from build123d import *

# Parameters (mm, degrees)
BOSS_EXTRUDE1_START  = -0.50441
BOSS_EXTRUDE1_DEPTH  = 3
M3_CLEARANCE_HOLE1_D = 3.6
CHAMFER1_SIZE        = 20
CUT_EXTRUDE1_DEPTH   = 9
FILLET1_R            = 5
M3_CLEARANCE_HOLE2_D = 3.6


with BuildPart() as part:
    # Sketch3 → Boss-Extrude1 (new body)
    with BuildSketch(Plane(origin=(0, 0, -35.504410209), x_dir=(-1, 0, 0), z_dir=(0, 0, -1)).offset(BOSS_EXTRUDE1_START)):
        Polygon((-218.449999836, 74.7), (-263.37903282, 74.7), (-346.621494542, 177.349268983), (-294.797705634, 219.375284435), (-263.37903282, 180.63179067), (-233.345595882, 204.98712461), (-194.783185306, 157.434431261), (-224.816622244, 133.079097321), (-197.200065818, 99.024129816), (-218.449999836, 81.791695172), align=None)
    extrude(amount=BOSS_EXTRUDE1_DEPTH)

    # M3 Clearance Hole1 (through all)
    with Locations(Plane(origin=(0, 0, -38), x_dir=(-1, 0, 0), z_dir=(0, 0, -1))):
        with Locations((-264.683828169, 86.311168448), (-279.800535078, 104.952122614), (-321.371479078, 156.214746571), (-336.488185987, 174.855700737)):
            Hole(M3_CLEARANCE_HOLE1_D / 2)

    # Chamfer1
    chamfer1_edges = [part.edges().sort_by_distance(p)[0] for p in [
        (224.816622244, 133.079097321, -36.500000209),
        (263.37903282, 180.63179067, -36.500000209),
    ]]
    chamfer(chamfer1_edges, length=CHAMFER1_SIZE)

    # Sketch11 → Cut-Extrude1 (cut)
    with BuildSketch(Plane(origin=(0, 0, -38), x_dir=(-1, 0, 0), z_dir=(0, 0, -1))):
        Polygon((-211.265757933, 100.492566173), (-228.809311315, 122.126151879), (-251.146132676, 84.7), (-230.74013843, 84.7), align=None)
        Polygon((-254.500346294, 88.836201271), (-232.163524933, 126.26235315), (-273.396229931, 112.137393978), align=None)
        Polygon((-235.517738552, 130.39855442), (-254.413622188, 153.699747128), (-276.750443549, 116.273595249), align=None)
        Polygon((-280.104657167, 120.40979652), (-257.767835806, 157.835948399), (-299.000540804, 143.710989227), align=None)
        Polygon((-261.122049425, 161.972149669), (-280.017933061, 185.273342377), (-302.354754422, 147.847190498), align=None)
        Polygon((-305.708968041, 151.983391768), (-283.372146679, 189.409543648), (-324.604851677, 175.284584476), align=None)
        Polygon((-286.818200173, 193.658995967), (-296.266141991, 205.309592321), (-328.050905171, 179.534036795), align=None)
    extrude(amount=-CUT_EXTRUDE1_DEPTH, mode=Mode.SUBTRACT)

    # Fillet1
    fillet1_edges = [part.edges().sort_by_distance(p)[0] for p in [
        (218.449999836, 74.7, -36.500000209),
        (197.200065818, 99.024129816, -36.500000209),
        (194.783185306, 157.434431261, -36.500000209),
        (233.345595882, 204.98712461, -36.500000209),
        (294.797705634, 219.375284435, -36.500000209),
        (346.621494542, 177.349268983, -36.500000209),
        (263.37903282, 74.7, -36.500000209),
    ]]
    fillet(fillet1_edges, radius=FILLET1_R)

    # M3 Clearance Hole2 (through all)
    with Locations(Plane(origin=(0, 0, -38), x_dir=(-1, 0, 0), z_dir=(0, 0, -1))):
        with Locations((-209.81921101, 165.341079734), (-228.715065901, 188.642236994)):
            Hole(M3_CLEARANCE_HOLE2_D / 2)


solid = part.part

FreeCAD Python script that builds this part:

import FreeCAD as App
import Part
import Sketcher

V = App.Vector
Q = App.Units.Quantity


def edges_at(feature, points):
    """Names of the edges that pass closest to the given points."""
    edges = feature.Shape.Edges
    near = lambda p: min(range(len(edges)), key=lambda i: edges[i].distToShape(Part.Vertex(*p))[0])
    return sorted({f"Edge{near(p) + 1}" for p in points})

doc = App.newDocument("Part")
params = doc.addObject("Spreadsheet::Sheet", "Params")
for row, (alias, value) in enumerate([
    ("pad1_length", "3 mm"),
    ("sketch2_diameter", "3.6 mm"),
    ("hole_diameter", "3.6 mm"),
    ("chamfer_size", "20 mm"),
    ("sketch3_length", "30 mm"),
    ("pocket1_length", "9 mm"),
    ("fillet_radius", "5 mm"),
    ("sketch4_diameter", "3.6 mm"),
    ("hole2_diameter", "3.6 mm"),
], start=1):
    params.set(f"A{row}", alias)
    params.set(f"B{row}", "=" + value)
    params.setAlias(f"B{row}", alias)

body = doc.addObject("PartDesign::Body", "Body")

# Sketch on XY plane
sketch1 = body.newObject("Sketcher::SketchObject", "Sketch")
sketch1.AttachmentSupport = (doc.getObject("XY_Plane"), [""])
sketch1.MapMode = "FlatFace"
sketch1.AttachmentOffset = App.Placement(V(0, 0, -35), App.Rotation())
sketch1.addGeometry(Part.LineSegment(V(263, 75, 0), V(218, 75, 0)), False)
sketch1.addGeometry(Part.LineSegment(V(218, 75, 0), V(218, 82, 0)), False)
sketch1.addGeometry(Part.LineSegment(V(218, 82, 0), V(197, 99, 0)), False)
sketch1.addGeometry(Part.LineSegment(V(197, 99, 0), V(225, 133, 0)), False)
sketch1.addGeometry(Part.LineSegment(V(225, 133, 0), V(195, 157, 0)), False)
sketch1.addGeometry(Part.LineSegment(V(195, 157, 0), V(233, 205, 0)), False)
sketch1.addGeometry(Part.LineSegment(V(233, 205, 0), V(263, 181, 0)), False)
sketch1.addGeometry(Part.LineSegment(V(263, 181, 0), V(295, 219, 0)), False)
sketch1.addGeometry(Part.LineSegment(V(295, 219, 0), V(347, 177, 0)), False)
sketch1.addGeometry(Part.LineSegment(V(347, 177, 0), V(263, 75, 0)), False)
sketch1.addConstraint(Sketcher.Constraint("Coincident", 0, 2, 1, 1))
sketch1.addConstraint(Sketcher.Constraint("Coincident", 1, 2, 2, 1))
sketch1.addConstraint(Sketcher.Constraint("Coincident", 2, 2, 3, 1))
sketch1.addConstraint(Sketcher.Constraint("Coincident", 3, 2, 4, 1))
sketch1.addConstraint(Sketcher.Constraint("Coincident", 4, 2, 5, 1))
sketch1.addConstraint(Sketcher.Constraint("Coincident", 5, 2, 6, 1))
sketch1.addConstraint(Sketcher.Constraint("Coincident", 6, 2, 7, 1))
sketch1.addConstraint(Sketcher.Constraint("Coincident", 7, 2, 8, 1))
sketch1.addConstraint(Sketcher.Constraint("Coincident", 8, 2, 9, 1))
sketch1.addConstraint(Sketcher.Constraint("Coincident", 9, 2, 0, 1))
sketch1.addConstraint(Sketcher.Constraint("Horizontal", 0))
sketch1.addConstraint(Sketcher.Constraint("Vertical", 1))
sketch1.addConstraint(Sketcher.Constraint("Perpendicular", 2, 3))
sketch1.addConstraint(Sketcher.Constraint("Perpendicular", 3, 4))
sketch1.addConstraint(Sketcher.Constraint("Perpendicular", 4, 5))
sketch1.addConstraint(Sketcher.Constraint("Perpendicular", 5, 6))
sketch1.addConstraint(Sketcher.Constraint("Perpendicular", 6, 7))
sketch1.addConstraint(Sketcher.Constraint("Perpendicular", 7, 8))
sketch1.addConstraint(Sketcher.Constraint("Perpendicular", 8, 9))
sketch1.addConstraint(Sketcher.Constraint("Vertical", 6, 2, 9, 2))
sketch1.addConstraint(Sketcher.Constraint("Equal", 4, 6))
sketch1.addConstraint(Sketcher.Constraint("DistanceY", -1, 1, 0, 2, Q("74.7 mm")))
sketch1.addConstraint(Sketcher.Constraint("Angle", 2, Q("140.96 deg")))
sketch1.addConstraint(Sketcher.Constraint("DistanceX", -1, 1, 0, 2, Q("218.45 mm")))
sketch1.addConstraint(Sketcher.Constraint("DistanceY", 2, 2, 4, 2, Q("58.410301 mm")))
sketch1.addConstraint(Sketcher.Constraint("DistanceX", 5, 2, 8, 2, Q("113.275899 mm")))
sketch1.addConstraint(Sketcher.Constraint("Distance", 2, Q("27.35903 mm")))
sketch1.addConstraint(Sketcher.Constraint("Distance", 4, Q("38.667682 mm")))
sketch1.addConstraint(Sketcher.Constraint("Distance", 5, Q("61.22351 mm")))
sketch1.addConstraint(Sketcher.Constraint("DistanceY", 1, 1, 1, 2, Q("7.091695 mm")))
pad1 = body.newObject("PartDesign::Pad", "Pad")
pad1.Profile = sketch1
pad1.setExpression("Length", "Params.pad1_length")
pad1.Reversed = True

# Sketch on XY plane
sketch2 = body.newObject("Sketcher::SketchObject", "Sketch001")
sketch2.AttachmentSupport = (doc.getObject("XY_Plane"), [""])
sketch2.MapMode = "FlatFace"
sketch2.AttachmentOffset = App.Placement(V(0, 0, -38), App.Rotation())
sketch2.addGeometry(Part.Circle(V(264.7, 86.3, 0), V(0, 0, 1), 1.8), False)
sketch2.addGeometry(Part.Circle(V(279.8, 105, 0), V(0, 0, 1), 1.8), False)
sketch2.addGeometry(Part.Circle(V(321.4, 156.2, 0), V(0, 0, 1), 1.8), False)
sketch2.addGeometry(Part.Circle(V(336.5, 174.9, 0), V(0, 0, 1), 1.8), False)
sketch2.addConstraint(Sketcher.Constraint("Equal", 0, 1))
sketch2.addConstraint(Sketcher.Constraint("Equal", 1, 2))
sketch2.addConstraint(Sketcher.Constraint("Equal", 2, 3))
sketch2.addConstraint(Sketcher.Constraint("Diameter", 0, Q("3.6 mm")))
sketch2.addConstraint(Sketcher.Constraint("DistanceY", -1, 1, 3, 3, Q("174.855701 mm")))
sketch2.addConstraint(Sketcher.Constraint("DistanceX", -1, 1, 0, 3, Q("264.683828 mm")))
sketch2.addConstraint(Sketcher.Constraint("DistanceY", -1, 1, 0, 3, Q("86.311168 mm")))
sketch2.addConstraint(Sketcher.Constraint("DistanceX", -1, 1, 2, 3, Q("321.371479 mm")))
sketch2.addConstraint(Sketcher.Constraint("DistanceY", 0, 3, 2, 3, Q("69.903578 mm")))
sketch2.addConstraint(Sketcher.Constraint("DistanceX", 1, 3, 3, 3, Q("56.687651 mm")))
sketch2.addConstraint(Sketcher.Constraint("DistanceY", 1, 3, 3, 3, Q("69.903578 mm")))
sketch2.addConstraint(Sketcher.Constraint("DistanceX", -1, 1, 1, 3, Q("279.800535 mm")))
sketch2.setExpression("Constraints[3]", "Params.sketch2_diameter")
doc.recompute()
hole = body.newObject("PartDesign::Hole", "Hole")
hole.Profile = sketch2
hole.ThreadType = "None"
hole.setExpression("Diameter", "Params.hole_diameter")
hole.DepthType = "ThroughAll"
hole.Reversed = True
doc.recompute()

chamfer = body.newObject("PartDesign::Chamfer", "Chamfer")
chamfer.Base = (hole, edges_at(hole, [(224.817, 133.079, -36.5), (263.379, 180.632, -36.5)]))
chamfer.setExpression("Size", "Params.chamfer_size")

# Sketch on XY plane
sketch3 = body.newObject("Sketcher::SketchObject", "Sketch002")
sketch3.AttachmentSupport = (doc.getObject("XY_Plane"), [""])
sketch3.MapMode = "FlatFace"
sketch3.AttachmentOffset = App.Placement(V(0, 0, -38), App.Rotation())
sketch3.addGeometry(Part.LineSegment(V(211, 100, 0), V(229, 122, 0)), False)
sketch3.addGeometry(Part.LineSegment(V(229, 122, 0), V(251, 85, 0)), False)
sketch3.addGeometry(Part.LineSegment(V(251, 85, 0), V(231, 85, 0)), False)
sketch3.addGeometry(Part.LineSegment(V(231, 85, 0), V(211, 100, 0)), False)
sketch3.addGeometry(Part.LineSegment(V(255, 89, 0), V(232, 126, 0)), False)
sketch3.addGeometry(Part.LineSegment(V(232, 126, 0), V(273, 112, 0)), False)
sketch3.addGeometry(Part.LineSegment(V(273, 112, 0), V(255, 89, 0)), False)
sketch3.addGeometry(Part.LineSegment(V(236, 130, 0), V(254, 154, 0)), False)
sketch3.addGeometry(Part.LineSegment(V(254, 154, 0), V(277, 116, 0)), False)
sketch3.addGeometry(Part.LineSegment(V(277, 116, 0), V(236, 130, 0)), False)
sketch3.addGeometry(Part.LineSegment(V(280, 120, 0), V(258, 158, 0)), False)
sketch3.addGeometry(Part.LineSegment(V(258, 158, 0), V(299, 144, 0)), False)
sketch3.addGeometry(Part.LineSegment(V(299, 144, 0), V(280, 120, 0)), False)
sketch3.addGeometry(Part.LineSegment(V(261, 162, 0), V(280, 185, 0)), False)
sketch3.addGeometry(Part.LineSegment(V(280, 185, 0), V(302, 148, 0)), False)
sketch3.addGeometry(Part.LineSegment(V(302, 148, 0), V(261, 162, 0)), False)
sketch3.addGeometry(Part.LineSegment(V(306, 152, 0), V(283, 189, 0)), False)
sketch3.addGeometry(Part.LineSegment(V(283, 189, 0), V(325, 175, 0)), False)
sketch3.addGeometry(Part.LineSegment(V(325, 175, 0), V(306, 152, 0)), False)
sketch3.addGeometry(Part.LineSegment(V(287, 194, 0), V(296, 205, 0)), False)
sketch3.addGeometry(Part.LineSegment(V(296, 205, 0), V(328, 180, 0)), False)
sketch3.addGeometry(Part.LineSegment(V(328, 180, 0), V(287, 194, 0)), False)
sketch3.addConstraint(Sketcher.Constraint("Coincident", 0, 2, 1, 1))
sketch3.addConstraint(Sketcher.Constraint("Coincident", 1, 2, 2, 1))
sketch3.addConstraint(Sketcher.Constraint("Coincident", 2, 2, 3, 1))
sketch3.addConstraint(Sketcher.Constraint("Coincident", 3, 2, 0, 1))
sketch3.addConstraint(Sketcher.Constraint("Coincident", 4, 2, 5, 1))
sketch3.addConstraint(Sketcher.Constraint("Coincident", 5, 2, 6, 1))
sketch3.addConstraint(Sketcher.Constraint("Coincident", 6, 2, 4, 1))
sketch3.addConstraint(Sketcher.Constraint("Coincident", 7, 2, 8, 1))
sketch3.addConstraint(Sketcher.Constraint("Coincident", 8, 2, 9, 1))
sketch3.addConstraint(Sketcher.Constraint("Coincident", 9, 2, 7, 1))
sketch3.addConstraint(Sketcher.Constraint("Coincident", 10, 2, 11, 1))
sketch3.addConstraint(Sketcher.Constraint("Coincident", 11, 2, 12, 1))
sketch3.addConstraint(Sketcher.Constraint("Coincident", 12, 2, 10, 1))
sketch3.addConstraint(Sketcher.Constraint("Coincident", 13, 2, 14, 1))
sketch3.addConstraint(Sketcher.Constraint("Coincident", 14, 2, 15, 1))
sketch3.addConstraint(Sketcher.Constraint("Coincident", 15, 2, 13, 1))
sketch3.addConstraint(Sketcher.Constraint("Coincident", 16, 2, 17, 1))
sketch3.addConstraint(Sketcher.Constraint("Coincident", 17, 2, 18, 1))
sketch3.addConstraint(Sketcher.Constraint("Coincident", 18, 2, 16, 1))
sketch3.addConstraint(Sketcher.Constraint("Coincident", 19, 2, 20, 1))
sketch3.addConstraint(Sketcher.Constraint("Coincident", 20, 2, 21, 1))
sketch3.addConstraint(Sketcher.Constraint("Coincident", 21, 2, 19, 1))
sketch3.addConstraint(Sketcher.Constraint("Horizontal", 2))
sketch3.addConstraint(Sketcher.Constraint("Perpendicular", 0, 3))
sketch3.addConstraint(Sketcher.Constraint("Parallel", 1, 4))
sketch3.addConstraint(Sketcher.Constraint("Perpendicular", 3, 6))
sketch3.addConstraint(Sketcher.Constraint("Parallel", 6, 7))
sketch3.addConstraint(Sketcher.Constraint("Parallel", 4, 8))
sketch3.addConstraint(Sketcher.Constraint("Parallel", 5, 9))
sketch3.addConstraint(Sketcher.Constraint("Parallel", 8, 10))
sketch3.addConstraint(Sketcher.Constraint("Parallel", 9, 11))
sketch3.addConstraint(Sketcher.Constraint("Parallel", 7, 12))
sketch3.addConstraint(Sketcher.Constraint("Parallel", 12, 13))
sketch3.addConstraint(Sketcher.Constraint("Parallel", 10, 14))
sketch3.addConstraint(Sketcher.Constraint("Parallel", 11, 15))
sketch3.addConstraint(Sketcher.Constraint("Parallel", 14, 16))
sketch3.addConstraint(Sketcher.Constraint("Parallel", 15, 17))
sketch3.addConstraint(Sketcher.Constraint("Parallel", 13, 18))
sketch3.addConstraint(Sketcher.Constraint("Parallel", 18, 19))
sketch3.addConstraint(Sketcher.Constraint("Perpendicular", 19, 20))
sketch3.addConstraint(Sketcher.Constraint("Parallel", 17, 21))
sketch3.addConstraint(Sketcher.Constraint("Equal", 1, 4))
sketch3.addConstraint(Sketcher.Constraint("Equal", 4, 5))
sketch3.addConstraint(Sketcher.Constraint("Equal", 6, 7))
sketch3.addConstraint(Sketcher.Constraint("Equal", 9, 10))
sketch3.addConstraint(Sketcher.Constraint("Equal", 12, 13))
sketch3.addConstraint(Sketcher.Constraint("Equal", 15, 16))
sketch3.addConstraint(Sketcher.Constraint("Equal", 17, 21))
sketch3.addConstraint(Sketcher.Constraint("Distance", 6, Q("30 mm")))
sketch3.addConstraint(Sketcher.Constraint("DistanceY", -1, 1, 1, 2, Q("84.7 mm")))
sketch3.addConstraint(Sketcher.Constraint("Angle", 0, Q("50.96 deg")))
sketch3.addConstraint(Sketcher.Constraint("DistanceY", -1, 1, 6, 2, Q("88.836201 mm")))
sketch3.addConstraint(Sketcher.Constraint("DistanceX", -1, 1, 21, 2, Q("286.8182 mm")))
sketch3.addConstraint(Sketcher.Constraint("DistanceY", 5, 2, 8, 2, Q("4.136201 mm")))
sketch3.addConstraint(Sketcher.Constraint("DistanceY", 7, 2, 10, 2, Q("4.136201 mm")))
sketch3.addConstraint(Sketcher.Constraint("DistanceY", 11, 2, 14, 2, Q("4.136201 mm")))
sketch3.addConstraint(Sketcher.Constraint("DistanceY", 13, 2, 16, 2, Q("4.136201 mm")))
sketch3.addConstraint(Sketcher.Constraint("DistanceY", 18, 2, 19, 2, Q("53.326201 mm")))
sketch3.addConstraint(Sketcher.Constraint("Distance", 1, Q("43.584979 mm")))
sketch3.addConstraint(Sketcher.Constraint("DistanceX", 2, 2, 2, 1, Q("20.405994 mm")))
sketch3.addConstraint(Sketcher.Constraint("DistanceX", -1, 1, 0, 2, Q("228.809311 mm")))
sketch3.addConstraint(Sketcher.Constraint("DistanceX", -1, 1, 5, 2, Q("273.39623 mm")))
sketch3.addConstraint(Sketcher.Constraint("DistanceX", -1, 1, 9, 2, Q("235.517739 mm")))
sketch3.addConstraint(Sketcher.Constraint("DistanceX", -1, 1, 11, 2, Q("299.000541 mm")))
sketch3.addConstraint(Sketcher.Constraint("DistanceX", -1, 1, 15, 2, Q("261.122049 mm")))
sketch3.addConstraint(Sketcher.Constraint("DistanceX", -1, 1, 17, 2, Q("324.604852 mm")))
sketch3.setExpression("Constraints[48]", "Params.sketch3_length")
pocket1 = body.newObject("PartDesign::Pocket", "Pocket")
pocket1.Profile = sketch3
pocket1.setExpression("Length", "Params.pocket1_length")
pocket1.Reversed = True
doc.recompute()

fillet = body.newObject("PartDesign::Fillet", "Fillet")
fillet.Base = (pocket1, edges_at(pocket1, [
    (218.45, 74.7, -36.5),
    (197.2, 99.024, -36.5),
    (194.783, 157.434, -36.5),
    (233.346, 204.987, -36.5),
    (294.798, 219.375, -36.5),
    (346.621, 177.349, -36.5),
    (263.379, 74.7, -36.5),
]))
fillet.setExpression("Radius", "Params.fillet_radius")

# Sketch on XY plane
sketch4 = body.newObject("Sketcher::SketchObject", "Sketch003")
sketch4.AttachmentSupport = (doc.getObject("XY_Plane"), [""])
sketch4.MapMode = "FlatFace"
sketch4.AttachmentOffset = App.Placement(V(0, 0, -38), App.Rotation())
sketch4.addGeometry(Part.Circle(V(209.8, 165.3, 0), V(0, 0, 1), 1.8), False)
sketch4.addGeometry(Part.Circle(V(228.7, 188.6, 0), V(0, 0, 1), 1.8), False)
sketch4.addConstraint(Sketcher.Constraint("Equal", 0, 1))
sketch4.addConstraint(Sketcher.Constraint("Diameter", 0, Q("3.6 mm")))
sketch4.addConstraint(Sketcher.Constraint("DistanceX", -1, 1, 0, 3, Q("209.819211 mm")))
sketch4.addConstraint(Sketcher.Constraint("DistanceY", -1, 1, 0, 3, Q("165.34108 mm")))
sketch4.addConstraint(Sketcher.Constraint("DistanceX", -1, 1, 1, 3, Q("228.715066 mm")))
sketch4.addConstraint(Sketcher.Constraint("DistanceY", -1, 1, 1, 3, Q("188.642237 mm")))
sketch4.setExpression("Constraints[1]", "Params.sketch4_diameter")
doc.recompute()
hole2 = body.newObject("PartDesign::Hole", "Hole001")
hole2.Profile = sketch4
hole2.ThreadType = "None"
hole2.setExpression("Diameter", "Params.hole2_diameter")
hole2.DepthType = "ThroughAll"
hole2.Reversed = True

doc.recompute()
